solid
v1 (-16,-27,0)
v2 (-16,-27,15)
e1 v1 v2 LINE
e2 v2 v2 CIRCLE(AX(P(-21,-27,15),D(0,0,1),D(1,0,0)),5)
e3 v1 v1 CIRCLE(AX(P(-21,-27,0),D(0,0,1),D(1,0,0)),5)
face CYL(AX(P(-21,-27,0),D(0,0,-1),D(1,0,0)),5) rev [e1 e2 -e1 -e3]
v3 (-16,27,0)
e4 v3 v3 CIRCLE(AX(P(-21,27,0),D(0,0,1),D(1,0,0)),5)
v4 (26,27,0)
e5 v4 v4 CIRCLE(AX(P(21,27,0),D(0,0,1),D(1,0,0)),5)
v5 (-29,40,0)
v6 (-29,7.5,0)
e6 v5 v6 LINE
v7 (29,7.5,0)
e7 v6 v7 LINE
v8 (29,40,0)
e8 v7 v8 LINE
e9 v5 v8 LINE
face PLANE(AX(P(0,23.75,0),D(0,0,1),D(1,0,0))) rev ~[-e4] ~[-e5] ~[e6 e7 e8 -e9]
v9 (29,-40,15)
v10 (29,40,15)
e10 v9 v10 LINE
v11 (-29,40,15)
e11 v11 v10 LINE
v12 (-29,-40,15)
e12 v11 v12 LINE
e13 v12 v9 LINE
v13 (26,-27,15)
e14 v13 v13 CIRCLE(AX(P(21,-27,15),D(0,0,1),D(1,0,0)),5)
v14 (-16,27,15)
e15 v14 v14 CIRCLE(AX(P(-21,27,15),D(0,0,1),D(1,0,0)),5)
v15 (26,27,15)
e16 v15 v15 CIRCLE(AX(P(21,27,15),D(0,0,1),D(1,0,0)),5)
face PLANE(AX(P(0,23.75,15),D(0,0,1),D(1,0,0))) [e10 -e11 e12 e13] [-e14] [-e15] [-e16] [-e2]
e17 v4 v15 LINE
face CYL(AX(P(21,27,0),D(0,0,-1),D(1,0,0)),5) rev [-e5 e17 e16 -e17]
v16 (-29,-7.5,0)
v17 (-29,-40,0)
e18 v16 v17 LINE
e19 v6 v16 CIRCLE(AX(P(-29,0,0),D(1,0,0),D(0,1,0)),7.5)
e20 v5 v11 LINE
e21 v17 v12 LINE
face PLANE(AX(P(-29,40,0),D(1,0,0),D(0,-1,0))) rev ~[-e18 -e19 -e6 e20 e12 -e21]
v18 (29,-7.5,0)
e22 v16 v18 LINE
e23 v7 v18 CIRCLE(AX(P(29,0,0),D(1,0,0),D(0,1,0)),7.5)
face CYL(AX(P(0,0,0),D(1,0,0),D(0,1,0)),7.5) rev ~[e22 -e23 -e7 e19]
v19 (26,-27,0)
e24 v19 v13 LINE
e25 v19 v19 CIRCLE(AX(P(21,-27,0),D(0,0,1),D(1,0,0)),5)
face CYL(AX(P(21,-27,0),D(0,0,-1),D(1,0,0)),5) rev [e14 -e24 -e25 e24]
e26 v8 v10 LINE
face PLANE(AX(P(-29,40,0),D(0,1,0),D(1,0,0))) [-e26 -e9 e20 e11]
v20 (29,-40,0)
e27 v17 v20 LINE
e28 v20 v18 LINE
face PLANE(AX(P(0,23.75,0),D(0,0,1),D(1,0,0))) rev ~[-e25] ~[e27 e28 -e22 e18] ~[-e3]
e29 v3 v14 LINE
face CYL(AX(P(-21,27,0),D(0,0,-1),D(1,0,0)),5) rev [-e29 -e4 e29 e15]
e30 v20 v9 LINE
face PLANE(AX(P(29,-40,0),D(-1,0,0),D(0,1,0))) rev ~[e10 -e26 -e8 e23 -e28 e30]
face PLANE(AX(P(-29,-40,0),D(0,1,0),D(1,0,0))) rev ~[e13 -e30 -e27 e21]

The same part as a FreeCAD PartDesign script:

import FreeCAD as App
import Part
import Sketcher
from FreeCAD import Vector
Q = App.Units.Quantity

doc = App.newDocument("Part")
body = doc.addObject("PartDesign::Body", "Body")

# Sketch on XY plane
sketch1 = doc.addObject("Sketcher::SketchObject", "Sketch")
body.addObject(sketch1)
sketch1.AttachmentSupport = (doc.XY_Plane, [""])
sketch1.MapMode = "FlatFace"
sketch1.addGeometry([
    Part.LineSegment(Vector(-29, 40, 0), Vector(-29, -40, 0)),  # 0
    Part.LineSegment(Vector(-29, -40, 0), Vector(29, -40, 0)),  # 1
    Part.LineSegment(Vector(29, -40, 0), Vector(29, 40, 0)),  # 2
    Part.LineSegment(Vector(29, 40, 0), Vector(-29, 40, 0)),  # 3
    Part.Circle(Vector(-21, -27, 0), Vector(0, 0, 1), 5),  # 4
    Part.Circle(Vector(21, -27, 0), Vector(0, 0, 1), 5),  # 5
    Part.Circle(Vector(-21, 27, 0), Vector(0, 0, 1), 5),  # 6
    Part.Circle(Vector(21, 27, 0), Vector(0, 0, 1), 5),  # 7
], False)
sketch1.addConstraint([
    Sketcher.Constraint("Coincident", 0, 2, 1, 1),
    Sketcher.Constraint("Coincident", 1, 2, 2, 1),
    Sketcher.Constraint("Coincident", 2, 2, 3, 1),
    Sketcher.Constraint("Coincident", 3, 2, 0, 1),
    Sketcher.Constraint("Vertical", 0),
    Sketcher.Constraint("Horizontal", 1),
    Sketcher.Constraint("Vertical", 2),
    Sketcher.Constraint("Horizontal", 3),
    Sketcher.Constraint("Equal", 4, 5),
    Sketcher.Constraint("Equal", 5, 6),
    Sketcher.Constraint("Equal", 6, 7),
    Sketcher.Constraint("Symmetric", 5, 3, 6, 3, -1, 1),
    Sketcher.Constraint("Symmetric", 4, 3, 7, 3, -1, 1),
    Sketcher.Constraint("Symmetric", 0, 2, 2, 2, -1, 1),
    Sketcher.Constraint("Symmetric", 4, 3, 5, 3, -2),
    Sketcher.Constraint("Diameter", 4, Q("10 mm")),
    Sketcher.Constraint("DistanceX", 1, 1, 1, 2, Q("58 mm")),
    Sketcher.Constraint("DistanceY", 0, 2, 0, 1, Q("80 mm")),
    Sketcher.Constraint("DistanceX", 4, 3, -1, 1, Q("21 mm")),
    Sketcher.Constraint("DistanceY", 4, 3, -1, 1, Q("27 mm")),
])
pad1 = doc.addObject("PartDesign::Pad", "Pad")
body.addObject(pad1)
pad1.Profile = sketch1
pad1.Length = 15

# Sketch on YZ plane
sketch2 = doc.addObject("Sketcher::SketchObject", "Sketch001")
body.addObject(sketch2)
sketch2.AttachmentSupport = (doc.YZ_Plane, [""])
sketch2.MapMode = "FlatFace"
sketch2.addGeometry(Part.Circle(Vector(0, 0, 0), Vector(0, 0, 1), 8), False)
sketch2.addConstraint([
    Sketcher.Constraint("Coincident", 0, 3, -1, 1),
    Sketcher.Constraint("Diameter", 0, Q("15 mm")),
])
pocket1 = doc.addObject("PartDesign::Pocket", "Pocket")
body.addObject(pocket1)
pocket1.Profile = sketch2
pocket1.Length = 60
pocket1.Midplane = True

doc.recompute()
